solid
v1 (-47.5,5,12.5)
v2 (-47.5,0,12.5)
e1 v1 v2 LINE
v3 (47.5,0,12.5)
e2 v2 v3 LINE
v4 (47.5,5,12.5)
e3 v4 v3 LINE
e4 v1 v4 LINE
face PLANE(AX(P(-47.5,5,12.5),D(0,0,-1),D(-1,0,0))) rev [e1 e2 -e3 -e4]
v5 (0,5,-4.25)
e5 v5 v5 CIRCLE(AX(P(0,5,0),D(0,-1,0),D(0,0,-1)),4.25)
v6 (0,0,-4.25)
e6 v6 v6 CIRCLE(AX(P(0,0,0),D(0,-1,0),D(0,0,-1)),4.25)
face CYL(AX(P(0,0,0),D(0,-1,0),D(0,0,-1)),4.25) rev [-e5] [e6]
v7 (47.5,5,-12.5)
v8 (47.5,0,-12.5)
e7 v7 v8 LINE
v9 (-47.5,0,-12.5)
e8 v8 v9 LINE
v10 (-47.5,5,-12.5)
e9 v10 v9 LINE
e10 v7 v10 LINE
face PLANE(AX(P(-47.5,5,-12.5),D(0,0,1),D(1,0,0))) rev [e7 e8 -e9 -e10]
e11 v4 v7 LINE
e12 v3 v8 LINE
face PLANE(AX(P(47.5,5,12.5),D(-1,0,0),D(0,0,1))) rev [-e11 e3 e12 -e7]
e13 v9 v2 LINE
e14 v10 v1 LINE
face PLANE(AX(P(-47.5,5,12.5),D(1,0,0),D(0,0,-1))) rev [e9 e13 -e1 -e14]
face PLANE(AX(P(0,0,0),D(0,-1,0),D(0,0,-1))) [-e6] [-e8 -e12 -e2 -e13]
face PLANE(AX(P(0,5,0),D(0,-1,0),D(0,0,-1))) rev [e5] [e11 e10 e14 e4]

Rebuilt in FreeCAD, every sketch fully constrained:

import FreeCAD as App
import Part
import Sketcher


def add_polygon(sketch, points):
    """Adds a closed chain of lines whose ends are joined by coincident constraints."""
    first, n = sketch.GeometryCount, len(points)
    for a, b in zip(points, points[1:] + points[:1]):
        sketch.addGeometry(Part.LineSegment(App.Vector(*a, 0), App.Vector(*b, 0)), False)
    for i in range(n):
        sketch.addConstraint(Sketcher.Constraint("Coincident", first + i, 2, first + (i + 1) % n, 1))

doc = App.newDocument("Part")
body = doc.addObject("PartDesign::Body", "Body")

sketch1 = body.newObject("Sketcher::SketchObject", "Sketch")
sketch1.AttachmentSupport = (doc.getObject("XZ_Plane"), [""])
sketch1.MapMode = "FlatFace"
add_polygon(sketch1, [(-48, -12), (-48, 12), (48, 12), (48, -12)])
sketch1.addConstraint([
    Sketcher.Constraint("Vertical", 0),
    Sketcher.Constraint("Horizontal", 1),
    Sketcher.Constraint("Vertical", 2),
    Sketcher.Constraint("Horizontal", 3),
    Sketcher.Constraint("Symmetric", 0, 2, 2, 2, -1, 1),
    Sketcher.Constraint("DistanceX", 1, 1, 1, 2, 95.0),
    Sketcher.Constraint("DistanceY", 0, 1, 0, 2, 25.0),
])
pad1 = body.newObject("PartDesign::Pad", "Pad")
pad1.Profile = sketch1
pad1.Length = 5
pad1.Reversed = True

sketch2 = body.newObject("Sketcher::SketchObject", "Sketch001")
sketch2.AttachmentSupport = (doc.getObject("XZ_Plane"), [""])
sketch2.MapMode = "FlatFace"
sketch2.addGeometry(Part.Circle(App.Vector(0, 0, 0), App.Vector(0, 0, 1), 4.2), False)
sketch2.addConstraint([
    Sketcher.Constraint("Coincident", 0, 3, -1, 1),
    Sketcher.Constraint("Diameter", 0, 8.5),
])
doc.recompute()
hole = body.newObject("PartDesign::Hole", "Hole")
hole.Profile = sketch2
hole.ThreadType = "None"
hole.Diameter = 8.5
hole.DepthType = "ThroughAll"

doc.recompute()
